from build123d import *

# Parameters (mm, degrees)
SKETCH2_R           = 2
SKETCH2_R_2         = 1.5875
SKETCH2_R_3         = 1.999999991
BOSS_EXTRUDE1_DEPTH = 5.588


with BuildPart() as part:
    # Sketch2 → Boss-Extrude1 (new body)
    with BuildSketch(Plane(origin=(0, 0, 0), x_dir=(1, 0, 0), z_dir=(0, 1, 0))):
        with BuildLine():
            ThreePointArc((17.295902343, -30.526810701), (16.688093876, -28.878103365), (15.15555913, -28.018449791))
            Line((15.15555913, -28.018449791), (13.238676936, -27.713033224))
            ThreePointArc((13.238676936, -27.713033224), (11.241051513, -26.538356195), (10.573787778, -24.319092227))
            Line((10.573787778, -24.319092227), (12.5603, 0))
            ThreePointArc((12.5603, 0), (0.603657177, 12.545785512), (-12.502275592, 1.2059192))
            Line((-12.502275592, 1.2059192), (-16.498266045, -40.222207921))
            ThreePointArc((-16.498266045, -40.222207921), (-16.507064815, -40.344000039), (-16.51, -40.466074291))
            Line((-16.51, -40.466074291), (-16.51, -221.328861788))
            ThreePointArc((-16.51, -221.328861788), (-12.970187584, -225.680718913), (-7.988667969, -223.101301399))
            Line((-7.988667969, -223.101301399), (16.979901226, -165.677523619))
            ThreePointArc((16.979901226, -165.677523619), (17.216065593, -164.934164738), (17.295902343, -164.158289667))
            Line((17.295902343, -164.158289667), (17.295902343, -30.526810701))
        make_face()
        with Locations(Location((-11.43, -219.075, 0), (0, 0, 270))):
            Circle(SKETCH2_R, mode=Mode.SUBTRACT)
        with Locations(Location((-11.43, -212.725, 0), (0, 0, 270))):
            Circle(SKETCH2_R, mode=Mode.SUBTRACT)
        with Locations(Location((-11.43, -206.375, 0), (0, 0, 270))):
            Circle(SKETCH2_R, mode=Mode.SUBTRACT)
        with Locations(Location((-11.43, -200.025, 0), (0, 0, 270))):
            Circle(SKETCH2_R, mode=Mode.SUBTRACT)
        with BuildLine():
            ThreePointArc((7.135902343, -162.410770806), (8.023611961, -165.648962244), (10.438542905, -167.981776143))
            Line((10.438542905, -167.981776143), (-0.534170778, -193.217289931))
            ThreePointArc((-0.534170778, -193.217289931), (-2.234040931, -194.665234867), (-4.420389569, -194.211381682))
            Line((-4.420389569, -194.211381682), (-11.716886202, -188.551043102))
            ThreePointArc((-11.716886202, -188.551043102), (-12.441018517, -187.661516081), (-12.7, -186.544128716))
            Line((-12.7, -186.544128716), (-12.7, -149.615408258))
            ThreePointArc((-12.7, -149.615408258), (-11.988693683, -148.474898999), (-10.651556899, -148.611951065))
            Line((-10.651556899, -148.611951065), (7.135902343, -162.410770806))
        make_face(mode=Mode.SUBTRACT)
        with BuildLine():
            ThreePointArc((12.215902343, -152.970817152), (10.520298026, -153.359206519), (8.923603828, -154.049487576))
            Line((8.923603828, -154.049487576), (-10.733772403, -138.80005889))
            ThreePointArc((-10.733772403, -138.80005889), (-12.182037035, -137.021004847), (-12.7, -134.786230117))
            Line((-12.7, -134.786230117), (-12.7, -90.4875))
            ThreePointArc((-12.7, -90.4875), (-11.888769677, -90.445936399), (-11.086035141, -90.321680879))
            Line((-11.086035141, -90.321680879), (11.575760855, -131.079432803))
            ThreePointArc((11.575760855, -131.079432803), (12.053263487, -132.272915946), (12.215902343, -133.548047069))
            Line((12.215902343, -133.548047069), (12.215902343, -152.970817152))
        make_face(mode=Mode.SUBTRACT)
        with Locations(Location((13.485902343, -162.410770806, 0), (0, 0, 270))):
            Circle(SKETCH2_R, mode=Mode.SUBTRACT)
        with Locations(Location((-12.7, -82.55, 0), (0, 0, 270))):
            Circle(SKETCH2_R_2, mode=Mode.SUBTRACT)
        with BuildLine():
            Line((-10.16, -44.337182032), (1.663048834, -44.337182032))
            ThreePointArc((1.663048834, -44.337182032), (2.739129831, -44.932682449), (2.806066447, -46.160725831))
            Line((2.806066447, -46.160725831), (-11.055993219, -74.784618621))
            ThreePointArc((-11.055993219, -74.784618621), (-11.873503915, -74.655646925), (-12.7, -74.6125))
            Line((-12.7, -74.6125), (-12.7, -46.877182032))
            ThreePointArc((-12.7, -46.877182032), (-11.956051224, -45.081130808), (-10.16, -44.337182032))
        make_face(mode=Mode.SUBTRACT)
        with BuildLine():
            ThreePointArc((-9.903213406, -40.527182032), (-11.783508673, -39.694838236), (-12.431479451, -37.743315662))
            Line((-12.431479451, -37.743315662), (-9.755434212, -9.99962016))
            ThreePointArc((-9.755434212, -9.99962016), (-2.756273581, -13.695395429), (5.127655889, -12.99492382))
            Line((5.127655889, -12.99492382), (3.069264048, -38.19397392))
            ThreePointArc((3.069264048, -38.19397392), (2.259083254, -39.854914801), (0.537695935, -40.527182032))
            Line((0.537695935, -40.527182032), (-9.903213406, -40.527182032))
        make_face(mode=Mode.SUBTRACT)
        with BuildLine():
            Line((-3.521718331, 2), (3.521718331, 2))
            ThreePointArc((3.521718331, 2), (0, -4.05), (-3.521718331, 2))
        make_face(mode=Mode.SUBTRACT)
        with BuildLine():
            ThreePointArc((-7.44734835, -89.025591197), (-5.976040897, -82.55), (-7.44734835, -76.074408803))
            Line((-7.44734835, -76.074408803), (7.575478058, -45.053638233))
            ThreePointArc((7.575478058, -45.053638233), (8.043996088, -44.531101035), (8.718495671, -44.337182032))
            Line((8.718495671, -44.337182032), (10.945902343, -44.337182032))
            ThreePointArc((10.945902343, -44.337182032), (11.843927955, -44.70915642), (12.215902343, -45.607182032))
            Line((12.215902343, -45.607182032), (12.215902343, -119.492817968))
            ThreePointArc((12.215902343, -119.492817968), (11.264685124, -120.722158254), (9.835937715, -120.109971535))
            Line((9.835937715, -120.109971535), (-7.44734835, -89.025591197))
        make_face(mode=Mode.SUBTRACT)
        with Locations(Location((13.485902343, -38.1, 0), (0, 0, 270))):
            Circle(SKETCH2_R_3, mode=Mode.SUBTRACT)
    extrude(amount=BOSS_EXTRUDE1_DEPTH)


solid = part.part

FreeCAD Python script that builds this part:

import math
import FreeCAD as App
import Part
import Sketcher
from FreeCAD import Vector
Q = App.Units.Quantity

doc = App.newDocument("Part")
params = doc.addObject("Spreadsheet::Sheet", "Params")
for row, (alias, value) in enumerate([
    ("sketch1_radius", "0.1 in"),
    ("sketch1_radius2", "0.2 in"),
    ("sketch1_radius3", "0.15 in"),
    ("sketch1_radius4", "0.25 in"),
    ("sketch1_radius5", "0.05 in"),
    ("pad1_length", "0.22 in"),
], start=1):
    params.set(f"A{row}", alias)
    params.set(f"B{row}", "=" + value)
    params.setAlias(f"B{row}", alias)

body = doc.addObject("PartDesign::Body", "Body")

# Sketch on XZ plane
sketch1 = body.newObject("Sketcher::SketchObject", "Sketch")
sketch1.AttachmentSupport = (doc.getObject("XZ_Plane"), [""])
sketch1.MapMode = "FlatFace"
sketch1.addGeometry(Part.ArcOfCircle(Part.Circle(Vector(14.76, 30.53, 0), Vector(0, 0, 1), 2.54), math.radians(-81), math.radians(0)), False)
sketch1.addGeometry(Part.LineSegment(Vector(15.16, 28.02, 0), Vector(13.24, 27.71, 0)), False)
sketch1.addGeometry(Part.ArcOfCircle(Part.Circle(Vector(13.74, 24.58, 0), Vector(0, 0, 1), 3.18), math.radians(99), math.radians(185)), False)
sketch1.addGeometry(Part.LineSegment(Vector(10.57, 24.32, 0), Vector(12.56, 0, 0)), False)
sketch1.addGeometry(Part.ArcOfCircle(Part.Circle(Vector(0, 0, 0), Vector(0, 0, 1), 12.56), math.radians(-174), math.radians(0)), False)
sketch1.addGeometry(Part.LineSegment(Vector(-12.5, -1.21, 0), Vector(-16.5, 40.22, 0)), False)
sketch1.addGeometry(Part.ArcOfCircle(Part.Circle(Vector(-13.97, 40.47, 0), Vector(0, 0, 1), 2.54), math.radians(-180), math.radians(-174.49)), False)
sketch1.addGeometry(Part.LineSegment(Vector(-16.51, 40.47, 0), Vector(-16.51, 221.33, 0)), False)
sketch1.addGeometry(Part.ArcOfCircle(Part.Circle(Vector(-12.06, 221.33, 0), Vector(0, 0, 1), 4.45), math.radians(23), math.radians(180)), False)
sketch1.addGeometry(Part.LineSegment(Vector(-7.99, 223.1, 0), Vector(16.98, 165.68, 0)), False)
sketch1.addGeometry(Part.ArcOfCircle(Part.Circle(Vector(13.49, 164.16, 0), Vector(0, 0, 1), 3.81), math.radians(0), math.radians(24)), False)
sketch1.addGeometry(Part.LineSegment(Vector(17.3, 164.16, 0), Vector(17.3, 30.53, 0)), False)
sketch1.addGeometry(Part.Circle(Vector(-11.43, 219.07, 0), Vector(0, 0, 1), 2), False)
sketch1.addGeometry(Part.Circle(Vector(-11.43, 212.72, 0), Vector(0, 0, 1), 2), False)
sketch1.addGeometry(Part.Circle(Vector(-11.43, 206.38, 0), Vector(0, 0, 1), 2), False)
sketch1.addGeometry(Part.Circle(Vector(-11.43, 200.03, 0), Vector(0, 0, 1), 2), False)
sketch1.addGeometry(Part.LineSegment(Vector(-10.65, 148.61, 0), Vector(7.14, 162.41, 0)), False)
sketch1.addGeometry(Part.ArcOfCircle(Part.Circle(Vector(13.49, 162.41, 0), Vector(0, 0, 1), 6.35), math.radians(119), math.radians(180)), False)
sketch1.addGeometry(Part.LineSegment(Vector(10.44, 167.98, 0), Vector(-0.53, 193.22, 0)), False)
sketch1.addGeometry(Part.ArcOfCircle(Part.Circle(Vector(-2.86, 192.2, 0), Vector(0, 0, 1), 2.54), math.radians(24), math.radians(128)), False)
sketch1.addGeometry(Part.LineSegment(Vector(-4.42, 194.21, 0), Vector(-11.72, 188.55, 0)), False)
sketch1.addGeometry(Part.ArcOfCircle(Part.Circle(Vector(-10.16, 186.54, 0), Vector(0, 0, 1), 2.54), math.radians(128), math.radians(180)), False)
sketch1.addGeometry(Part.LineSegment(Vector(-12.7, 186.54, 0), Vector(-12.7, 149.62, 0)), False)
sketch1.addGeometry(Part.ArcOfCircle(Part.Circle(Vector(-11.43, 149.62, 0), Vector(0, 0, 1), 1.27), math.radians(180), math.radians(308)), False)
sketch1.addGeometry(Part.LineSegment(Vector(12.22, 133.55, 0), Vector(12.22, 152.97, 0)), False)
sketch1.addGeometry(Part.ArcOfCircle(Part.Circle(Vector(13.49, 162.41, 0), Vector(0, 0, 1), 9.52), math.radians(-119), math.radians(-98)), False)
sketch1.addGeometry(Part.LineSegment(Vector(8.92, 154.05, 0), Vector(-10.73, 138.8, 0)), False)
sketch1.addGeometry(Part.ArcOfCircle(Part.Circle(Vector(-7.62, 134.79, 0), Vector(0, 0, 1), 5.08), math.radians(128), math.radians(180)), False)
sketch1.addGeometry(Part.LineSegment(Vector(-12.7, 134.79, 0), Vector(-12.7, 90.49, 0)), False)
sketch1.addGeometry(Part.ArcOfCircle(Part.Circle(Vector(-12.7, 82.55, 0), Vector(0, 0, 1), 7.94), math.radians(78.27), math.radians(90)), False)
sketch1.addGeometry(Part.LineSegment(Vector(-11.09, 90.32, 0), Vector(11.58, 131.08, 0)), False)
sketch1.addGeometry(Part.ArcOfCircle(Part.Circle(Vector(7.14, 133.55, 0), Vector(0, 0, 1), 5.08), math.radians(-29), math.radians(0)), False)
sketch1.addGeometry(Part.Circle(Vector(13.49, 162.41, 0), Vector(0, 0, 1), 2), False)
sketch1.addGeometry(Part.Circle(Vector(-12.7, 82.55, 0), Vector(0, 0, 1), 1.59), False)
sketch1.addGeometry(Part.ArcOfCircle(Part.Circle(Vector(-10.16, 46.88, 0), Vector(0, 0, 1), 2.54), math.radians(-180), math.radians(-90)), False)
sketch1.addGeometry(Part.LineSegment(Vector(-10.16, 44.34, 0), Vector(1.66, 44.34, 0)), False)
sketch1.addGeometry(Part.ArcOfCircle(Part.Circle(Vector(1.66, 45.61, 0), Vector(0, 0, 1), 1.27), math.radians(-90), math.radians(26)), False)
sketch1.addGeometry(Part.LineSegment(Vector(2.81, 46.16, 0), Vector(-11.06, 74.78, 0)), False)
sketch1.addGeometry(Part.ArcOfCircle(Part.Circle(Vector(-12.7, 82.55, 0), Vector(0, 0, 1), 7.94), math.radians(-90), math.radians(-78.05)), False)
sketch1.addGeometry(Part.LineSegment(Vector(-12.7, 74.61, 0), Vector(-12.7, 46.88, 0)), False)
sketch1.addGeometry(Part.LineSegment(Vector(0.54, 40.53, 0), Vector(-9.9, 40.53, 0)), False)
sketch1.addGeometry(Part.ArcOfCircle(Part.Circle(Vector(-9.9, 37.99, 0), Vector(0, 0, 1), 2.54), math.radians(90), math.radians(186)), False)
sketch1.addGeometry(Part.LineSegment(Vector(-12.43, 37.74, 0), Vector(-9.76, 10, 0)), False)
sketch1.addGeometry(Part.ArcOfCircle(Part.Circle(Vector(0, 0, 0), Vector(0, 0, 1), 13.97), math.radians(68), math.radians(134)), False)
sketch1.addGeometry(Part.LineSegment(Vector(5.13, 12.99, 0), Vector(3.07, 38.19, 0)), False)
sketch1.addGeometry(Part.ArcOfCircle(Part.Circle(Vector(0.54, 37.99, 0), Vector(0, 0, 1), 2.54), math.radians(5), math.radians(90)), False)
sketch1.addGeometry(Part.ArcOfCircle(Part.Circle(Vector(0, 0, 0), Vector(0, 0, 1), 4.05), math.radians(-30), math.radians(210)), False)
sketch1.addGeometry(Part.LineSegment(Vector(-3.52, -2, 0), Vector(3.52, -2, 0)), False)
sketch1.addGeometry(Part.LineSegment(Vector(9.84, 120.11, 0), Vector(-7.45, 89.03, 0)), False)
sketch1.addGeometry(Part.ArcOfCircle(Part.Circle(Vector(-20.96, 82.55, 0), Vector(0, 0, 1), 14.99), math.radians(-26), math.radians(26)), False)
sketch1.addGeometry(Part.LineSegment(Vector(-7.45, 76.07, 0), Vector(7.58, 45.05, 0)), False)
sketch1.addGeometry(Part.ArcOfCircle(Part.Circle(Vector(8.72, 45.61, 0), Vector(0, 0, 1), 1.27), math.radians(-154), math.radians(-90)), False)
sketch1.addGeometry(Part.LineSegment(Vector(8.72, 44.34, 0), Vector(10.95, 44.34, 0)), False)
sketch1.addGeometry(Part.ArcOfCircle(Part.Circle(Vector(10.95, 45.61, 0), Vector(0, 0, 1), 1.27), math.radians(-90), math.radians(0)), False)
sketch1.addGeometry(Part.LineSegment(Vector(12.22, 45.61, 0), Vector(12.22, 119.49, 0)), False)
sketch1.addGeometry(Part.ArcOfCircle(Part.Circle(Vector(10.95, 119.49, 0), Vector(0, 0, 1), 1.27), math.radians(0), math.radians(151)), False)
sketch1.addGeometry(Part.Circle(Vector(13.49, 38.1, 0), Vector(0, 0, 1), 2), False)
sketch1.addConstraint(Sketcher.Constraint("Tangent", 0, 1, 1, 1))
sketch1.addConstraint(Sketcher.Constraint("Tangent", 1, 2, 2, 1))
sketch1.addConstraint(Sketcher.Constraint("Tangent", 2, 2, 3, 1))
sketch1.addConstraint(Sketcher.Constraint("Coincident", 3, 2, 4, 2))
sketch1.addConstraint(Sketcher.Constraint("Tangent", 4, 1, 5, 1))
sketch1.addConstraint(Sketcher.Constraint("Tangent", 5, 2, 6, 2))
sketch1.addConstraint(Sketcher.Constraint("Tangent", 6, 1, 7, 1))
sketch1.addConstraint(Sketcher.Constraint("Tangent", 7, 2, 8, 2))
sketch1.addConstraint(Sketcher.Constraint("Tangent", 8, 1, 9, 1))
sketch1.addConstraint(Sketcher.Constraint("Tangent", 9, 2, 10, 2))
sketch1.addConstraint(Sketcher.Constraint("Tangent", 10, 1, 11, 1))
sketch1.addConstraint(Sketcher.Constraint("Tangent", 11, 2, 0, 2))
sketch1.addConstraint(Sketcher.Constraint("Coincident", 16, 2, 17, 2))
sketch1.addConstraint(Sketcher.Constraint("Coincident", 17, 1, 18, 1))
sketch1.addConstraint(Sketcher.Constraint("Tangent", 18, 2, 19, 1))
sketch1.addConstraint(Sketcher.Constraint("Tangent", 19, 2, 20, 1))
sketch1.addConstraint(Sketcher.Constraint("Tangent", 20, 2, 21, 1))
sketch1.addConstraint(Sketcher.Constraint("Tangent", 21, 2, 22, 1))
sketch1.addConstraint(Sketcher.Constraint("Tangent", 22, 2, 23, 1))
sketch1.addConstraint(Sketcher.Constraint("Tangent", 23, 2, 16, 1))
sketch1.addConstraint(Sketcher.Constraint("Coincident", 24, 2, 25, 2))
sketch1.addConstraint(Sketcher.Constraint("Coincident", 25, 1, 26, 1))
sketch1.addConstraint(Sketcher.Constraint("Tangent", 26, 2, 27, 1))
sketch1.addConstraint(Sketcher.Constraint("Tangent", 27, 2, 28, 1))
sketch1.addConstraint(Sketcher.Constraint("Coincident", 28, 2, 29, 2))
sketch1.addConstraint(Sketcher.Constraint("Coincident", 29, 1, 30, 1))
sketch1.addConstraint(Sketcher.Constraint("Tangent", 30, 2, 31, 1))
sketch1.addConstraint(Sketcher.Constraint("Tangent", 31, 2, 24, 1))
sketch1.addConstraint(Sketcher.Constraint("Tangent", 34, 2, 35, 1))
sketch1.addConstraint(Sketcher.Constraint("Tangent", 35, 2, 36, 1))
sketch1.addConstraint(Sketcher.Constraint("Tangent", 36, 2, 37, 1))
sketch1.addConstraint(Sketcher.Constraint("Coincident", 37, 2, 38, 2))
sketch1.addConstraint(Sketcher.Constraint("Coincident", 38, 1, 39, 1))
sketch1.addConstraint(Sketcher.Constraint("Tangent", 39, 2, 34, 1))
sketch1.addConstraint(Sketcher.Constraint("Tangent", 40, 2, 41, 1))
sketch1.addConstraint(Sketcher.Constraint("Tangent", 41, 2, 42, 1))
sketch1.addConstraint(Sketcher.Constraint("Coincident", 42, 2, 43, 2))
sketch1.addConstraint(Sketcher.Constraint("Coincident", 43, 1, 44, 1))
sketch1.addConstraint(Sketcher.Constraint("Tangent", 44, 2, 45, 1))
sketch1.addConstraint(Sketcher.Constraint("Tangent", 45, 2, 40, 1))
sketch1.addConstraint(Sketcher.Constraint("Coincident", 46, 1, 47, 2))
sketch1.addConstraint(Sketcher.Constraint("Coincident", 47, 1, 46, 2))
sketch1.addConstraint(Sketcher.Constraint("Coincident", 48, 2, 49, 2))
sketch1.addConstraint(Sketcher.Constraint("Coincident", 49, 1, 50, 1))
sketch1.addConstraint(Sketcher.Constraint("Tangent", 50, 2, 51, 1))
sketch1.addConstraint(Sketcher.Constraint("Tangent", 51, 2, 52, 1))
sketch1.addConstraint(Sketcher.Constraint("Tangent", 52, 2, 53, 1))
sketch1.addConstraint(Sketcher.Constraint("Tangent", 53, 2, 54, 1))
sketch1.addConstraint(Sketcher.Constraint("Tangent", 54, 2, 55, 1))
sketch1.addConstraint(Sketcher.Constraint("Tangent", 55, 2, 48, 1))
sketch1.addConstraint(Sketcher.Constraint("Vertical", 7))
sketch1.addConstraint(Sketcher.Constraint("Vertical", 11))
sketch1.addConstraint(Sketcher.Constraint("Vertical", 22))
sketch1.addConstraint(Sketcher.Constraint("Vertical", 24))
sketch1.addConstraint(Sketcher.Constraint("Vertical", 28))
sketch1.addConstraint(Sketcher.Constraint("Horizontal", 35))
sketch1.addConstraint(Sketcher.Constraint("Vertical", 39))
sketch1.addConstraint(Sketcher.Constraint("Horizontal", 40))
sketch1.addConstraint(Sketcher.Constraint("Horizontal", 47))
sketch1.addConstraint(Sketcher.Constraint("Horizontal", 52))
sketch1.addConstraint(Sketcher.Constraint("Vertical", 54))
sketch1.addConstraint(Sketcher.Constraint("Coincident", 4, 3, -1, 1))
sketch1.addConstraint(Sketcher.Constraint("Coincident", 43, 3, -1, 1))
sketch1.addConstraint(Sketcher.Constraint("Coincident", 46, 3, -1, 1))
sketch1.addConstraint(Sketcher.Constraint("Coincident", 25, 3, 17, 3))
sketch1.addConstraint(Sketcher.Constraint("Coincident", 32, 3, 17, 3))
sketch1.addConstraint(Sketcher.Constraint("Coincident", 33, 3, 29, 3))
sketch1.addConstraint(Sketcher.Constraint("Coincident", 38, 3, 29, 3))
sketch1.addConstraint(Sketcher.Constraint("Equal", 0, 6))
sketch1.addConstraint(Sketcher.Constraint("Equal", 12, 13))
sketch1.addConstraint(Sketcher.Constraint("Equal", 13, 14))
sketch1.addConstraint(Sketcher.Constraint("Equal", 14, 15))
sketch1.addConstraint(Sketcher.Constraint("Equal", 6, 19))
sketch1.addConstraint(Sketcher.Constraint("Equal", 19, 21))
sketch1.addConstraint(Sketcher.Constraint("Equal", 27, 31))
sketch1.addConstraint(Sketcher.Constraint("Equal", 15, 32))
sketch1.addConstraint(Sketcher.Constraint("Equal", 21, 34))
sketch1.addConstraint(Sketcher.Constraint("Equal", 23, 36))
sketch1.addConstraint(Sketcher.Constraint("Equal", 29, 38))
sketch1.addConstraint(Sketcher.Constraint("Equal", 34, 41))
sketch1.addConstraint(Sketcher.Constraint("Equal", 41, 45))
sketch1.addConstraint(Sketcher.Constraint("Equal", 36, 51))
sketch1.addConstraint(Sketcher.Constraint("Equal", 51, 53))
sketch1.addConstraint(Sketcher.Constraint("Equal", 53, 55))
sketch1.addConstraint(Sketcher.Constraint("Equal", 32, 56))
sketch1.addConstraint(Sketcher.Constraint("PointOnObject", 3, 2, -1))
sketch1.addConstraint(Sketcher.Constraint("Parallel", 9, 18))
sketch1.addConstraint(Sketcher.Constraint("Parallel", 16, 20))
sketch1.addConstraint(Sketcher.Constraint("Parallel", 20, 26))
sketch1.addConstraint(Sketcher.Constraint("Parallel", 5, 42))
sketch1.addConstraint(Sketcher.Constraint("Parallel", 3, 44))
sketch1.addConstraint(Sketcher.Constraint("Parallel", 30, 48))
sketch1.addConstraint(Sketcher.Constraint("Parallel", 37, 50))
sketch1.addConstraint(Sketcher.Constraint("Horizontal", 38, 3, 49, 3))
sketch1.addConstraint(Sketcher.Constraint("Horizontal", 36, 3, 51, 3))
sketch1.addConstraint(Sketcher.Constraint("Horizontal", 32, 3, 16, 2))
sketch1.addConstraint(Sketcher.Constraint("Vertical", 12, 3, 13, 3))
sketch1.addConstraint(Sketcher.Constraint("Vertical", 13, 3, 14, 3))
sketch1.addConstraint(Sketcher.Constraint("Vertical", 14, 3, 15, 3))
sketch1.addConstraint(Sketcher.Constraint("Vertical", 10, 3, 17, 3))
sketch1.addConstraint(Sketcher.Constraint("Vertical", 15, 3, 23, 3))
sketch1.addConstraint(Sketcher.Constraint("Vertical", 21, 3, 34, 3))
sketch1.addConstraint(Sketcher.Constraint("Vertical", 32, 3, 56, 3))
sketch1.addConstraint(Sketcher.Constraint("Vertical", 31, 3, 16, 2))
sketch1.addConstraint(Sketcher.Constraint("Vertical", 38, 3, 21, 2))
sketch1.addConstraint(Sketcher.Constraint("Vertical", 22, 2, 27, 2))
sketch1.addConstraint(Sketcher.Constraint("Vertical", 48, 2, 49, 1))
sketch1.addConstraint(Sketcher.Constraint("Vertical", 31, 2, 53, 2))
sketch1.addConstraint(Sketcher.Constraint("Radius", 0, Q("0.1 in")))
sketch1.addConstraint(Sketcher.Constraint("Radius", 27, Q("0.2 in")))
sketch1.addConstraint(Sketcher.Constraint("Radius", 10, Q("0.15 in")))
sketch1.addConstraint(Sketcher.Constraint("Radius", 17, Q("0.25 in")))
sketch1.addConstraint(Sketcher.Constraint("Radius", 23, Q("0.05 in")))
sketch1.addConstraint(Sketcher.Constraint("Radius", 43, Q("0.55 in")))
sketch1.addConstraint(Sketcher.Constraint("Radius", 49, Q("0.59 in")))
sketch1.addConstraint(Sketcher.Constraint("Diameter", 33, Q("0.125 in")))
sketch1.addConstraint(Sketcher.Constraint("Radius", 2, Q("0.125 in")))
sketch1.addConstraint(Sketcher.Constraint("Radius", 8, Q("0.175 in")))
sketch1.addConstraint(Sketcher.Constraint("Radius", 25, Q("0.375 in")))
sketch1.addConstraint(Sketcher.Constraint("Radius", 29, Q("0.3125 in")))
sketch1.addConstraint(Sketcher.Constraint("DistanceX", 21, 3, -1, 1, Q("0.4 in")))
sketch1.addConstraint(Sketcher.Constraint("DistanceY", -1, 1, 56, 3, Q("1.5 in")))
sketch1.addConstraint(Sketcher.Constraint("Angle", 9, Q("-66.5 deg")))
sketch1.addConstraint(Sketcher.Constraint("Radius", 4, Q("0.4945 in")))
sketch1.addConstraint(Sketcher.Constraint("Diameter", 12, 4.0))
sketch1.addConstraint(Sketcher.Constraint("DistanceX", 6, 3, -1, 1, Q("0.55 in")))
sketch1.addConstraint(Sketcher.Constraint("DistanceY", -1, 1, 29, 3, Q("3.25 in")))
sketch1.addConstraint(Sketcher.Constraint("Radius", 46, 4.05))
sketch1.addConstraint(Sketcher.Constraint("DistanceY", -1, 1, 12, 3, Q("8.625 in")))
sketch1.addConstraint(Sketcher.Constraint("DistanceY", -1, 1, 13, 3, Q("8.375 in")))
sketch1.addConstraint(Sketcher.Constraint("DistanceY", -1, 1, 14, 3, Q("8.125 in")))
sketch1.addConstraint(Sketcher.Constraint("DistanceY", -1, 1, 15, 3, Q("7.875 in")))
sketch1.addConstraint(Sketcher.Constraint("DistanceX", -1, 1, 9, 2, Q("0.6685 in")))
sketch1.addConstraint(Sketcher.Constraint("Distance", 5, 41.6204))
sketch1.addConstraint(Sketcher.Constraint("DistanceX", 35, 1, 35, 2, 11.823049))
sketch1.addConstraint(Sketcher.Constraint("DistanceX", 40, 2, 40, 1, 10.440909))
sketch1.addConstraint(Sketcher.Constraint("DistanceY", 11, 2, 11, 1, 133.631479))
sketch1.addConstraint(Sketcher.Constraint("DistanceY", 22, 2, 22, 1, 36.92872))
sketch1.addConstraint(Sketcher.Constraint("DistanceY", 24, 1, 24, 2, 19.42277))
sketch1.addConstraint(Sketcher.Constraint("DistanceY", 28, 2, 28, 1, 44.29873))
sketch1.addConstraint(Sketcher.Constraint("DistanceY", -1, 1, 8, 1, 223.101301))
sketch1.addConstraint(Sketcher.Constraint("DistanceY", 46, 1, -1, 1, 2.0))
sketch1.addConstraint(Sketcher.Constraint("Distance", 1, 1.941061))
sketch1.addConstraint(Sketcher.Constraint("Distance", 3, 24.400092))
sketch1.addConstraint(Sketcher.Constraint("Distance", 18, 27.517842))
sketch1.addConstraint(Sketcher.Constraint("Distance", 30, 46.634229))
sketch1.addConstraint(Sketcher.Constraint("Distance", 44, 25.28298))
sketch1.addConstraint(Sketcher.Constraint("Distance", 50, 34.466992))
sketch1.addConstraint(Sketcher.Constraint("DistanceX", 52, 1, 52, 2, 2.227407))
sketch1.addConstraint(Sketcher.Constraint("DistanceY", 39, 2, 39, 1, 27.735318))
sketch1.addConstraint(Sketcher.Constraint("DistanceY", 54, 1, 54, 2, 73.885636))
sketch1.addConstraint(Sketcher.Constraint("DistanceY", -1, 1, 17, 3, 162.410771))
sketch1.addConstraint(Sketcher.Constraint("DistanceY", -1, 1, 21, 3, 186.544129))
sketch1.addConstraint(Sketcher.Constraint("DistanceX", 41, 2, -1, 1, 12.431479))
sketch1.setExpression("Constraints[108]", "Params.sketch1_radius")
sketch1.setExpression("Constraints[109]", "Params.sketch1_radius2")
sketch1.setExpression("Constraints[110]", "Params.sketch1_radius3")
sketch1.setExpression("Constraints[111]", "Params.sketch1_radius4")
sketch1.setExpression("Constraints[112]", "Params.sketch1_radius5")
pad1 = body.newObject("PartDesign::Pad", "Pad")
pad1.Profile = sketch1
pad1.setExpression("Length", "Params.pad1_length")
pad1.Reversed = True

doc.recompute()
